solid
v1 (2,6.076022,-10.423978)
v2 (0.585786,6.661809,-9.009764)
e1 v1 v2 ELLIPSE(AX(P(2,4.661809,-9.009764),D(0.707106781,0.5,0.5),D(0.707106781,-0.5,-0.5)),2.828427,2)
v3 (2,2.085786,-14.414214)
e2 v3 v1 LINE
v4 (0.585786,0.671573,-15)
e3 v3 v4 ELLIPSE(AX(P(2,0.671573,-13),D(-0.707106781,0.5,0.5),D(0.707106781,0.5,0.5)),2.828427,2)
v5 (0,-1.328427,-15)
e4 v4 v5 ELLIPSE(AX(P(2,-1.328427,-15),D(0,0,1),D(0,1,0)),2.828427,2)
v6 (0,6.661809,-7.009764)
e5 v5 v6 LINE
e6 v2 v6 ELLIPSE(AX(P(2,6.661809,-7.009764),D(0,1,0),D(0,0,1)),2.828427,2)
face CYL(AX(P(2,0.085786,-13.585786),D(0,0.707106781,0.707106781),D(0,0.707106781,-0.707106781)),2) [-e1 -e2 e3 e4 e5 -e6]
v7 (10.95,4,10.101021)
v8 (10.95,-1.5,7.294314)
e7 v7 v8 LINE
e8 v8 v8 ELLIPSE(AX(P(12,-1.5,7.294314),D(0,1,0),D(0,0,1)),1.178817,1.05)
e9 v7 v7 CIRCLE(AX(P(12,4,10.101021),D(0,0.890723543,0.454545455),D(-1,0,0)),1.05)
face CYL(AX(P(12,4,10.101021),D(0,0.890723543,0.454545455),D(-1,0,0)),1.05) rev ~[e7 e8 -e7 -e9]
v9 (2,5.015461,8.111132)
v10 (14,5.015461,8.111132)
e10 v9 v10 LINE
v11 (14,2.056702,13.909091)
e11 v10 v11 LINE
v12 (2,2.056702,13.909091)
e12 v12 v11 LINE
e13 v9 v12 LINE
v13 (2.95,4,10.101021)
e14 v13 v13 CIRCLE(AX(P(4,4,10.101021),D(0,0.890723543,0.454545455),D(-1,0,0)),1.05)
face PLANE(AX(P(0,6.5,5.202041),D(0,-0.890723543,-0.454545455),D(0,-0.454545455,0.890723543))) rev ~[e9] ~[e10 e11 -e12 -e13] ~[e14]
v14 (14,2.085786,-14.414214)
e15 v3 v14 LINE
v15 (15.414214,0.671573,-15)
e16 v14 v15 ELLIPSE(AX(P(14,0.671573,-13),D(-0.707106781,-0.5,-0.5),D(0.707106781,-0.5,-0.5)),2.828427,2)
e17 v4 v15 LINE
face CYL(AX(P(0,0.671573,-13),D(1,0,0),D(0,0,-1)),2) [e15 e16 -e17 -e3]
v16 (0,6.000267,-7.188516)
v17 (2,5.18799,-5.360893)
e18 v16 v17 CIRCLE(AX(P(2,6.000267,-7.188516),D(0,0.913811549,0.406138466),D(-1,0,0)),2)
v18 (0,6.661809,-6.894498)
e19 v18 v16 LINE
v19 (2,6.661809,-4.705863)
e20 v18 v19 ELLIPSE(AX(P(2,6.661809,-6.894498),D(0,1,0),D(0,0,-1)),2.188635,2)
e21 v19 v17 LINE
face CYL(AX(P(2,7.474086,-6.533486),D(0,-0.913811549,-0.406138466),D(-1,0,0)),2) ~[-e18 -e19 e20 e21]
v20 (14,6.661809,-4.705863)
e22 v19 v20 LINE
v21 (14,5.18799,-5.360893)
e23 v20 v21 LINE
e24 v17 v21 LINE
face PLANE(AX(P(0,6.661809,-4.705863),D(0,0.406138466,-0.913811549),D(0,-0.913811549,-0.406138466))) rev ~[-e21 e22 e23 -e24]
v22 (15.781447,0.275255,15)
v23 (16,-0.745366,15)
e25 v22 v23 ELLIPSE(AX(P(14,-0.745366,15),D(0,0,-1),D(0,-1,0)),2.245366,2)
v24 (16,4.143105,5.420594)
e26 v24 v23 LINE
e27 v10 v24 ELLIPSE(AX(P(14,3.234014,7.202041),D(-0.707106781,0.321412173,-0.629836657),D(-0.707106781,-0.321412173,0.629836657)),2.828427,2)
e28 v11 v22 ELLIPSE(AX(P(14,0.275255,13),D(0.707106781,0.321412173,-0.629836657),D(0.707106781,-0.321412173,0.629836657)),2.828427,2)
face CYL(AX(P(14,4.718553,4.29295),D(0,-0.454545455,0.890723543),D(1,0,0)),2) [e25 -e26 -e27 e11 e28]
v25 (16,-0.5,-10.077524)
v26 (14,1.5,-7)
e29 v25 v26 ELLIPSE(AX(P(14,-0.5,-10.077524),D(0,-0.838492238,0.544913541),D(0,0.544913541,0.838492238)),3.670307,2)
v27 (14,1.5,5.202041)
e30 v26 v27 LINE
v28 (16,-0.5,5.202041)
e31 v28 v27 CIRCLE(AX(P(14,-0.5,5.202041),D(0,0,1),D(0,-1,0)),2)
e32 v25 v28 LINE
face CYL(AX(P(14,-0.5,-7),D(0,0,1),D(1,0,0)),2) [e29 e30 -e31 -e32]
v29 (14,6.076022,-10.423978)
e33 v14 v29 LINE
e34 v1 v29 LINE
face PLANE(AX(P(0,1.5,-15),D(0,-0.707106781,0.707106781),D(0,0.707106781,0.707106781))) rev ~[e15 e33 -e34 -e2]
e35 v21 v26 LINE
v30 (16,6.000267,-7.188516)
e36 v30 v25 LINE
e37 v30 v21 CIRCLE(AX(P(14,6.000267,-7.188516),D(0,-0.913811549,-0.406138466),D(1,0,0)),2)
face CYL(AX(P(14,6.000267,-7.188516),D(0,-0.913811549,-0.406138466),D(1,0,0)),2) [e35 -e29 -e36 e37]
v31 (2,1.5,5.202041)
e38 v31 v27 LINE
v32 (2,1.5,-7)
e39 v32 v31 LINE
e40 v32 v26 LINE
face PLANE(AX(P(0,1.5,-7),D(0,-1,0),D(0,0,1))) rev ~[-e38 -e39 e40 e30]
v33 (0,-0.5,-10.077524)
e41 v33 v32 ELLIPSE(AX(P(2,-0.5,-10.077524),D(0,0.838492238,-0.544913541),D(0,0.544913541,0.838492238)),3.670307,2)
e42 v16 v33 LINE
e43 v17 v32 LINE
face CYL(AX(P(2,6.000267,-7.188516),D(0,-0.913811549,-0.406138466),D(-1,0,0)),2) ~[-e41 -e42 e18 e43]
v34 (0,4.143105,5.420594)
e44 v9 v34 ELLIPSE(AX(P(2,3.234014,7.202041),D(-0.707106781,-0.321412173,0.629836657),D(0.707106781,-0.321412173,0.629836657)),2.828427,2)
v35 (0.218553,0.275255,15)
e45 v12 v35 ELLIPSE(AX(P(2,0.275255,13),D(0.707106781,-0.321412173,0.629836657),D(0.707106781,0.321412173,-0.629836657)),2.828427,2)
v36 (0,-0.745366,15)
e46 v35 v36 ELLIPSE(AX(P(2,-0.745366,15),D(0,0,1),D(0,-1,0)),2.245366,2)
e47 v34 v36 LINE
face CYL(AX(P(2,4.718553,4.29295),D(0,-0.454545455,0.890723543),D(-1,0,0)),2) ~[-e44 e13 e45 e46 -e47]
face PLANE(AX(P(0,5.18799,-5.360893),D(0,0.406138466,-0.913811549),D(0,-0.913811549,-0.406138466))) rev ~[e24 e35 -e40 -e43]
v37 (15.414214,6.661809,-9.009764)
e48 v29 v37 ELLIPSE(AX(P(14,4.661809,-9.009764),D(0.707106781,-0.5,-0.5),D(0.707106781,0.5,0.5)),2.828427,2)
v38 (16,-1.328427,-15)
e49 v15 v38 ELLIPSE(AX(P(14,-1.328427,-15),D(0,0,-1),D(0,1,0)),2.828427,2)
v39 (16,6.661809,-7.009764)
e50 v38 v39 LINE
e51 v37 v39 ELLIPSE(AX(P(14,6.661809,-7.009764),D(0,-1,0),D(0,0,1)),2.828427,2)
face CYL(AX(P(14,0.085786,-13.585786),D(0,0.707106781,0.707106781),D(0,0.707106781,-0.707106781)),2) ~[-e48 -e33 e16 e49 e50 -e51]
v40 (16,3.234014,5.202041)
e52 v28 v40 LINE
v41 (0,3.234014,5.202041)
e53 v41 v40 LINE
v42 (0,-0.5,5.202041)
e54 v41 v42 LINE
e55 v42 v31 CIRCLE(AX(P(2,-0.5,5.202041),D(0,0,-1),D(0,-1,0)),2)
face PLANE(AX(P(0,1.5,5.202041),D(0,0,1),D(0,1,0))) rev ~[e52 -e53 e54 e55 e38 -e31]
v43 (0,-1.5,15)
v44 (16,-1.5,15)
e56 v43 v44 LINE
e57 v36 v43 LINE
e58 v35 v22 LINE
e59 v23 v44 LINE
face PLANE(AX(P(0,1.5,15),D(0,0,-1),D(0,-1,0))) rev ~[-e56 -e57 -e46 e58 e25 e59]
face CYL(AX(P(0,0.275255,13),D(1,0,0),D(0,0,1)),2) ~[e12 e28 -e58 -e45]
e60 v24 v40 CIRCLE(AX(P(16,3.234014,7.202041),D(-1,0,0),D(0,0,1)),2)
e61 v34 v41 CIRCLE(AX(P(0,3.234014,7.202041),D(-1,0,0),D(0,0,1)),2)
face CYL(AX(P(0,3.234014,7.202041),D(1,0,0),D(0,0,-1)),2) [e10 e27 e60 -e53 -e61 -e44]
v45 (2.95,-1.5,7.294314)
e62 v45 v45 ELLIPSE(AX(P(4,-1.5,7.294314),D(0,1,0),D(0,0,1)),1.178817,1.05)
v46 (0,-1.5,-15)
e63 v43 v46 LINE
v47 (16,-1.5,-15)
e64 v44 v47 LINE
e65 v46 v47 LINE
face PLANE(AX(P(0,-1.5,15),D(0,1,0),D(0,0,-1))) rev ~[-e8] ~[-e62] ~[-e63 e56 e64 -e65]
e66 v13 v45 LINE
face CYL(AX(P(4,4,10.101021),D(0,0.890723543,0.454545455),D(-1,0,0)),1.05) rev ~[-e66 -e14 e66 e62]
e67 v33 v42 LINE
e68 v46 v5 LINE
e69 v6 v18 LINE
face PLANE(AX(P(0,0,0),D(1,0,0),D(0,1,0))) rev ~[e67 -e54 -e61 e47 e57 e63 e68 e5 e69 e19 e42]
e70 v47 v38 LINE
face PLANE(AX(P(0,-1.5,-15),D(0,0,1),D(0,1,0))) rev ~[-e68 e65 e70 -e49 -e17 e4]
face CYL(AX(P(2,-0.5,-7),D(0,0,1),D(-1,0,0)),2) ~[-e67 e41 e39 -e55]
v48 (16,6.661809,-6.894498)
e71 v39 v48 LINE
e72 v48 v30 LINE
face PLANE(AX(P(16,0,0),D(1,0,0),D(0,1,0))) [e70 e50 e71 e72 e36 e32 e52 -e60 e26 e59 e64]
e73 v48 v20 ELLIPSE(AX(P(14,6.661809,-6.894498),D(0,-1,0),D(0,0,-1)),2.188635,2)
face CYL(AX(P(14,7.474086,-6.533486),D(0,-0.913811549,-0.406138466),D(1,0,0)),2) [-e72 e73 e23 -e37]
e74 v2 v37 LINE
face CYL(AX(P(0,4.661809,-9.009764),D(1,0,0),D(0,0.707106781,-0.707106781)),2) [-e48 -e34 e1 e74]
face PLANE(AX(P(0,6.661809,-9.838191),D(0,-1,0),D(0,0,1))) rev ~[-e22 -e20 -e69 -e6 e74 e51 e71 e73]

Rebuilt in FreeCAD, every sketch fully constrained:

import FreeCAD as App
import Part
import Sketcher
from FreeCAD import Vector
Q = App.Units.Quantity


def edges_at(feature, points):
    """Names of the edges that pass closest to the given points."""
    edges = feature.Shape.Edges
    near = lambda p: min(range(len(edges)), key=lambda i: edges[i].distToShape(Part.Vertex(*p))[0])
    return sorted({f"Edge{near(p) + 1}" for p in points})


def add_polygon(sketch, points):
    """Adds a closed chain of lines whose ends are joined by coincident constraints."""
    first, n = sketch.GeometryCount, len(points)
    for a, b in zip(points, points[1:] + points[:1]):
        sketch.addGeometry(Part.LineSegment(App.Vector(*a, 0), App.Vector(*b, 0)), False)
    for i in range(n):
        sketch.addConstraint(Sketcher.Constraint("Coincident", first + i, 2, first + (i + 1) % n, 1))

doc = App.newDocument("Part")
params = doc.addObject("Spreadsheet::Sheet", "Params")
for row, (alias, value) in enumerate([
    ("sketch1_width", "3 mm"),
    ("sketch1_width2", "5 mm"),
    ("sketch1_height", "30 mm"),
    ("sketch1_length", "11 mm"),
    ("pad1_length", "16 mm"),
    ("sketch2_diameter", "2.1 mm"),
    ("pocket1_length", "7.710581 mm"),
    ("fillet_radius", "2 mm"),
], start=1):
    params.set(f"A{row}", alias)
    params.set(f"B{row}", "=" + value)
    params.setAlias(f"B{row}", alias)

body = doc.addObject("PartDesign::Body", "Body")

# Sketch on YZ plane
sketch1 = body.newObject("Sketcher::SketchObject", "Sketch")
sketch1.AttachmentSupport = (doc.getObject("YZ_Plane"), [""])
sketch1.MapMode = "FlatFace"
add_polygon(sketch1, [(-1.5, -15), (1.5, -15), (6.7, -9.8), (6.7, -4.7), (5.2, -5.4), (1.5, -7), (1.5, 5.2), (6.5, 5.2), (1.5, 15), (-1.5, 15)])  # lines 0-9
sketch1.addConstraint([
    Sketcher.Constraint("Horizontal", 0),
    Sketcher.Constraint("Vertical", 2),
    Sketcher.Constraint("Vertical", 5),
    Sketcher.Constraint("Horizontal", 6),
    Sketcher.Constraint("Horizontal", 8),
    Sketcher.Constraint("Vertical", 9),
    Sketcher.Constraint("Symmetric", 0, 2, 8, 2, -1, 1),
    Sketcher.Constraint("Parallel", 3, 4),
    Sketcher.Constraint("Vertical", 0, 2, 4, 2),
    Sketcher.Constraint("Vertical", 5, 2, 7, 2),
    Sketcher.Constraint("DistanceX", 0, 1, 0, 2, Q("3 mm")),
    Sketcher.Constraint("DistanceX", 6, 1, 6, 2, Q("5 mm")),
    Sketcher.Constraint("DistanceY", 9, 2, 9, 1, Q("30 mm")),
    Sketcher.Constraint("Angle", 1, Q("45 deg")),
    Sketcher.Constraint("Distance", 7, Q("11 mm")),
    Sketcher.Constraint("DistanceY", 4, 2, -1, 1, Q("7 mm")),
    Sketcher.Constraint("Distance", 1, Q("7.2999 mm")),
    Sketcher.Constraint("DistanceY", 2, 1, 2, 2, Q("5.132329 mm")),
    Sketcher.Constraint("DistanceY", 1, 2, 3, 2, Q("4.477298 mm")),
])
sketch1.setExpression("Constraints[20]", "Params.sketch1_width")
sketch1.setExpression("Constraints[21]", "Params.sketch1_width2")
sketch1.setExpression("Constraints[22]", "Params.sketch1_height")
sketch1.setExpression("Constraints[24]", "Params.sketch1_length")
pad1 = body.newObject("PartDesign::Pad", "Pad")
pad1.Profile = sketch1
pad1.setExpression("Length", "Params.pad1_length")

# Sketch on an angled plane
sketch2 = body.newObject("Sketcher::SketchObject", "Sketch001")
sketch2.Placement = App.Placement(Vector(0, 7.263198, 3.706485), App.Rotation(Vector(-1, 0, 0), Vector(0, -0.454545455, 0.890723543), Vector(0, 0.890723543, 0.454545455), "ZXY"))
sketch2.addGeometry([
    Part.Circle(Vector(-12, 7.2, 0), Vector(0, 0, 1), 1.1),
    Part.Circle(Vector(-4, 7.2, 0), Vector(0, 0, 1), 1.1),
], False)
sketch2.addConstraint([
    Sketcher.Constraint("Equal", 0, 1),
    Sketcher.Constraint("Horizontal", 0, 3, 1, 3),
    Sketcher.Constraint("Diameter", 0, Q("2.1 mm")),
    Sketcher.Constraint("DistanceX", 0, 3, -1, 1, Q("12 mm")),
    Sketcher.Constraint("DistanceX", 1, 3, -1, 1, Q("4 mm")),
    Sketcher.Constraint("DistanceY", -1, 1, 0, 3, Q("7.179035 mm")),
])
sketch2.setExpression("Constraints[2]", "Params.sketch2_diameter")
pocket1 = body.newObject("PartDesign::Pocket", "Pocket")
pocket1.Profile = sketch2
pocket1.setExpression("Length", "Params.pocket1_length")
doc.recompute()

fillet = body.newObject("PartDesign::Fillet", "Fillet")
fillet.Base = (pocket1, edges_at(pocket1, [
    (16, 1.5, -0.899),
    (0, 1.5, -0.899),
    (16, 4, 10.101),
    (0, 4, 10.101),
    (8, 6.5, 5.202),
    (8, 6.662, -9.838),
    (16, 4.081, -12.419),
    (0, 4.081, -12.419),
    (16, 3.344, -6.18),
    (0, 3.344, -6.18),
    (8, 1.5, 15),
    (8, 1.5, -15),
]))
fillet.setExpression("Radius", "Params.fillet_radius")

doc.recompute()
